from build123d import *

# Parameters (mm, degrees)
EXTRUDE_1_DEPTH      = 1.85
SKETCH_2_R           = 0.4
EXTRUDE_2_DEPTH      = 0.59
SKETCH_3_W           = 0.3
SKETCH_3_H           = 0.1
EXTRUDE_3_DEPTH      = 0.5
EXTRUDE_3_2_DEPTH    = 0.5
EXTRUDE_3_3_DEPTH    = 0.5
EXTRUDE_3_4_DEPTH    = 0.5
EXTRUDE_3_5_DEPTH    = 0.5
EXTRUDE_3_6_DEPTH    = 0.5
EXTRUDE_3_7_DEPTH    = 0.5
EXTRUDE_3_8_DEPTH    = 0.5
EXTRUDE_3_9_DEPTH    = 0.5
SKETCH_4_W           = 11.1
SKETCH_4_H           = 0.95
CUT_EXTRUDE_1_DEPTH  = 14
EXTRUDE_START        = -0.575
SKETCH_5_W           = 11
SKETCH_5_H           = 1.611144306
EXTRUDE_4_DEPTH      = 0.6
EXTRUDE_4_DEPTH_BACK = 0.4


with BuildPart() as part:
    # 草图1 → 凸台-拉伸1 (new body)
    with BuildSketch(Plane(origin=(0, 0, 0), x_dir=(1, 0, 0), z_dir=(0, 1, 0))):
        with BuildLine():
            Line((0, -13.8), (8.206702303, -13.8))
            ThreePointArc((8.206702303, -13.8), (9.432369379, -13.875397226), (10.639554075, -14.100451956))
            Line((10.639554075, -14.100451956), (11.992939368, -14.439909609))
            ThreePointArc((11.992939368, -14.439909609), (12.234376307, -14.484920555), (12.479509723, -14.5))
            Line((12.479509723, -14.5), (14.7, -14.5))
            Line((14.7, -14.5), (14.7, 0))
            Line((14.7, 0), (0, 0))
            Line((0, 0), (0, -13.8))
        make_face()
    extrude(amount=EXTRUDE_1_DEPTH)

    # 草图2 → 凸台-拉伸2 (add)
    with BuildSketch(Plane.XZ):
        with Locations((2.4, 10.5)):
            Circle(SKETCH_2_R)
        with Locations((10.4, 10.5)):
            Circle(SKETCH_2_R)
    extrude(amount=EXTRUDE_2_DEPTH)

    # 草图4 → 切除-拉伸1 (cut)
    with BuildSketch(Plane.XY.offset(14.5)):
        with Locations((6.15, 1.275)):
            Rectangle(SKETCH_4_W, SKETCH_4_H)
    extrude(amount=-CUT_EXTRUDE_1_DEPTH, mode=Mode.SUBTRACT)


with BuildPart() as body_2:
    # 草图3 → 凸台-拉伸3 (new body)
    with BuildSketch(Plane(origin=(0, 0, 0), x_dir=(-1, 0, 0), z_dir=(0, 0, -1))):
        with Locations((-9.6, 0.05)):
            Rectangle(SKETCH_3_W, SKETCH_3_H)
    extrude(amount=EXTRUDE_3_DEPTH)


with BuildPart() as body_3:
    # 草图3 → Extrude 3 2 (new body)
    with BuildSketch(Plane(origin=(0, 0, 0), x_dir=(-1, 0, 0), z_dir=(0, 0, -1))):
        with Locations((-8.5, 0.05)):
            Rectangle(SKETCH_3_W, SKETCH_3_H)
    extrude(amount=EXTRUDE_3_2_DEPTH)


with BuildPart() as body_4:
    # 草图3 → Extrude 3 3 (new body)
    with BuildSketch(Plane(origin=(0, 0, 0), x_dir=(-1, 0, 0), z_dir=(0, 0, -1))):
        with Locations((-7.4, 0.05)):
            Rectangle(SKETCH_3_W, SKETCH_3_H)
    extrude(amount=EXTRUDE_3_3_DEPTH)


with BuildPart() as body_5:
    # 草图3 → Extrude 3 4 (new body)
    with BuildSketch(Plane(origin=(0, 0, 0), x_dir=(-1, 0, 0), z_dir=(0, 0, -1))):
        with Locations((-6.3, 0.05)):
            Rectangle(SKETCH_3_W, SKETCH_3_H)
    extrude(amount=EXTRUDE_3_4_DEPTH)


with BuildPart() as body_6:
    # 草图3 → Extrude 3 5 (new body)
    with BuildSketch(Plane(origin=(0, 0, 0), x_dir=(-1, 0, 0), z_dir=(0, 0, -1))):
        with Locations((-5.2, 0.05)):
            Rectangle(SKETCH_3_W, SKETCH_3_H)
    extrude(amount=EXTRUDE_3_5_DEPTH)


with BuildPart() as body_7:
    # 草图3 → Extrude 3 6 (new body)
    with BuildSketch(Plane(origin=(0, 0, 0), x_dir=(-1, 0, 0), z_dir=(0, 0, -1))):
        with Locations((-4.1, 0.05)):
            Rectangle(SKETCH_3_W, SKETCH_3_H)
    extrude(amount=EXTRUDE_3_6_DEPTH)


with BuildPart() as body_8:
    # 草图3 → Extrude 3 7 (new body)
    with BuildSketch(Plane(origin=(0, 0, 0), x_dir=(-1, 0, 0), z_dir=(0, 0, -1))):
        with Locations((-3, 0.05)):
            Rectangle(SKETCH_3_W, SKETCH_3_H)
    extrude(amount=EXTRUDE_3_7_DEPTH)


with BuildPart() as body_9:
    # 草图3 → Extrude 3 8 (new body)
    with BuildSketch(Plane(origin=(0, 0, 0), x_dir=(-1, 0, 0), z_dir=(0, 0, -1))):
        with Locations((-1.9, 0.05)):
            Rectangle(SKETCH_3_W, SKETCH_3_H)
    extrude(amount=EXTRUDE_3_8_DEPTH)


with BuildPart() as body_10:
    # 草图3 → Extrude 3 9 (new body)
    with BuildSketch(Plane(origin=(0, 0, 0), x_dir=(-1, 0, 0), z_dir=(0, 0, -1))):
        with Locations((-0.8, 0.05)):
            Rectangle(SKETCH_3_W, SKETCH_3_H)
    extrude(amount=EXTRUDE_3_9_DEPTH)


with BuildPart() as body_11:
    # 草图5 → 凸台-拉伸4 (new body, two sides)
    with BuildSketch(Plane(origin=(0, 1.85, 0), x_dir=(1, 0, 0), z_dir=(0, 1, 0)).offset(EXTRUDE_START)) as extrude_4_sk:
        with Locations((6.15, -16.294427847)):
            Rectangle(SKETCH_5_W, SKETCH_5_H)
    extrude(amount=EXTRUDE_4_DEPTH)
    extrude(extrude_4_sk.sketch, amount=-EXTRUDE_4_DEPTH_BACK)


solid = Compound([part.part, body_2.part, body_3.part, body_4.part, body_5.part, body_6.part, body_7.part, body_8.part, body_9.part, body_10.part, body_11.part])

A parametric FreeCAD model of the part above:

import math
import FreeCAD as App
import Part
import Sketcher

V = App.Vector

doc = App.newDocument("Part")
body = doc.addObject("PartDesign::Body", "Body")

# Sketch on XZ plane
sketch1 = body.newObject("Sketcher::SketchObject", "Sketch")
sketch1.AttachmentSupport = (doc.getObject("XZ_Plane"), [""])
sketch1.MapMode = "FlatFace"
sketch1.addGeometry([
    Part.LineSegment(V(0, 13.8, 0), V(8.206702, 13.8, 0)),  # 0
    Part.ArcOfCircle(Part.Circle(V(8.206702, 23.8, 0), V(0, 0, 1), 10), math.radians(-90), math.radians(-75.919484)),  # 1
    Part.LineSegment(V(10.639554, 14.100452, 0), V(11.992939, 14.43991, 0)),  # 2
    Part.ArcOfCircle(Part.Circle(V(12.47951, 12.5, 0), V(0, 0, 1), 2), math.radians(90), math.radians(104.080516)),  # 3
    Part.LineSegment(V(12.47951, 14.5, 0), V(14.7, 14.5, 0)),  # 4
    Part.LineSegment(V(14.7, 14.5, 0), V(14.7, 0, 0)),  # 5
    Part.LineSegment(V(14.7, 0, 0), V(0, 0, 0)),  # 6
    Part.LineSegment(V(0, 0, 0), V(0, 13.8, 0)),  # 7
], False)
sketch1.addConstraint([
    Sketcher.Constraint("Tangent", 0, 2, 1, 1),
    Sketcher.Constraint("Tangent", 1, 2, 2, 1),
    Sketcher.Constraint("Tangent", 2, 2, 3, 2),
    Sketcher.Constraint("Tangent", 3, 1, 4, 1),
    Sketcher.Constraint("Coincident", 4, 2, 5, 1),
    Sketcher.Constraint("Coincident", 5, 2, 6, 1),
    Sketcher.Constraint("Coincident", 6, 2, 7, 1),
    Sketcher.Constraint("Coincident", 7, 2, 0, 1),
    Sketcher.Constraint("Horizontal", 0),
    Sketcher.Constraint("Horizontal", 4),
    Sketcher.Constraint("Vertical", 5),
    Sketcher.Constraint("Horizontal", 6),
    Sketcher.Constraint("Vertical", 7),
    Sketcher.Constraint("Coincident", 6, 2, -1, 1),
    Sketcher.Constraint("Radius", 1, 10.0),
    Sketcher.Constraint("Radius", 3, 2.0),
    Sketcher.Constraint("DistanceX", 6, 2, 6, 1, 14.7),
    Sketcher.Constraint("DistanceY", 5, 2, 5, 1, 14.5),
    Sketcher.Constraint("DistanceY", 7, 1, 7, 2, 13.8),
    Sketcher.Constraint("DistanceX", 4, 1, 4, 2, 2.22049),
    Sketcher.Constraint("DistanceX", 0, 1, 0, 2, 8.206702),
])
pad1 = body.newObject("PartDesign::Pad", "Pad")
pad1.Profile = sketch1
pad1.Length = 1.85
pad1.Reversed = True

# Sketch on XZ plane
sketch2 = body.newObject("Sketcher::SketchObject", "Sketch001")
sketch2.AttachmentSupport = (doc.getObject("XZ_Plane"), [""])
sketch2.MapMode = "FlatFace"
sketch2.addGeometry([
    Part.Circle(V(2.4, 10.5, 0), V(0, 0, 1), 0.4),
    Part.Circle(V(10.4, 10.5, 0), V(0, 0, 1), 0.4),
], False)
sketch2.addConstraint([
    Sketcher.Constraint("Equal", 0, 1),
    Sketcher.Constraint("Horizontal", 0, 3, 1, 3),
    Sketcher.Constraint("Diameter", 0, 0.8),
    Sketcher.Constraint("DistanceX", 0, 3, 1, 3, 8.0),
    Sketcher.Constraint("DistanceX", -1, 1, 0, 3, 2.4),
    Sketcher.Constraint("DistanceY", -1, 1, 0, 3, 10.5),
])
pad2 = body.newObject("PartDesign::Pad", "Pad001")
pad2.Profile = sketch2
pad2.Length = 0.59

# Sketch on XY plane
sketch3 = body.newObject("Sketcher::SketchObject", "Sketch002")
sketch3.AttachmentSupport = (doc.getObject("XY_Plane"), [""])
sketch3.MapMode = "FlatFace"
sketch3.AttachmentOffset = App.Placement(V(0, 0, 14.5), App.Rotation())
sketch3.addGeometry([
    Part.LineSegment(V(0.6, 1.75, 0), V(0.6, 0.8, 0)),
    Part.LineSegment(V(0.6, 0.8, 0), V(11.7, 0.8, 0)),
    Part.LineSegment(V(11.7, 0.8, 0), V(11.7, 1.75, 0)),
    Part.LineSegment(V(11.7, 1.75, 0), V(0.6, 1.75, 0)),
], False)
sketch3.addConstraint([
    Sketcher.Constraint("Coincident", 0, 2, 1, 1),
    Sketcher.Constraint("Coincident", 1, 2, 2, 1),
    Sketcher.Constraint("Coincident", 2, 2, 3, 1),
    Sketcher.Constraint("Coincident", 3, 2, 0, 1),
    Sketcher.Constraint("Vertical", 0),
    Sketcher.Constraint("Horizontal", 1),
    Sketcher.Constraint("Vertical", 2),
    Sketcher.Constraint("Horizontal", 3),
    Sketcher.Constraint("DistanceX", 1, 1, 1, 2, 11.1),
    Sketcher.Constraint("DistanceY", 0, 2, 0, 1, 0.95),
    Sketcher.Constraint("DistanceX", -1, 1, 0, 2, 0.6),
    Sketcher.Constraint("DistanceY", -1, 1, 0, 2, 0.8),
])
pocket1 = body.newObject("PartDesign::Pocket", "Pocket")
pocket1.Profile = sketch3
pocket1.Length = 14
body2 = doc.addObject("PartDesign::Body", "Body001")

# Sketch on XY plane
sketch4 = body2.newObject("Sketcher::SketchObject", "Sketch003")
sketch4.AttachmentSupport = (doc.getObject("XY_Plane001"), [""])
sketch4.MapMode = "FlatFace"
sketch4.addGeometry([
    Part.LineSegment(V(9.75, 0.1, 0), V(9.75, 0, 0)),
    Part.LineSegment(V(9.75, 0, 0), V(9.45, 0, 0)),
    Part.LineSegment(V(9.45, 0, 0), V(9.45, 0.1, 0)),
    Part.LineSegment(V(9.45, 0.1, 0), V(9.75, 0.1, 0)),
], False)
sketch4.addConstraint([
    Sketcher.Constraint("Coincident", 0, 2, 1, 1),
    Sketcher.Constraint("Coincident", 1, 2, 2, 1),
    Sketcher.Constraint("Coincident", 2, 2, 3, 1),
    Sketcher.Constraint("Coincident", 3, 2, 0, 1),
    Sketcher.Constraint("Vertical", 0),
    Sketcher.Constraint("Horizontal", 1),
    Sketcher.Constraint("Vertical", 2),
    Sketcher.Constraint("Horizontal", 3),
    Sketcher.Constraint("PointOnObject", 0, 2, -1),
    Sketcher.Constraint("DistanceX", 1, 2, 1, 1, 0.3),
    Sketcher.Constraint("DistanceY", 0, 2, 0, 1, 0.1),
    Sketcher.Constraint("DistanceX", -1, 1, 0, 2, 9.75),
])
pad3 = body2.newObject("PartDesign::Pad", "Pad002")
pad3.Profile = sketch4
pad3.Length = 0.5
pad3.Reversed = True
body3 = doc.addObject("PartDesign::Body", "Body002")

# Sketch on XY plane
sketch5 = body3.newObject("Sketcher::SketchObject", "Sketch004")
sketch5.AttachmentSupport = (doc.getObject("XY_Plane002"), [""])
sketch5.MapMode = "FlatFace"
sketch5.addGeometry([
    Part.LineSegment(V(8.65, 0.1, 0), V(8.65, 0, 0)),
    Part.LineSegment(V(8.65, 0, 0), V(8.35, 0, 0)),
    Part.LineSegment(V(8.35, 0, 0), V(8.35, 0.1, 0)),
    Part.LineSegment(V(8.35, 0.1, 0), V(8.65, 0.1, 0)),
], False)
sketch5.addConstraint([
    Sketcher.Constraint("Coincident", 0, 2, 1, 1),
    Sketcher.Constraint("Coincident", 1, 2, 2, 1),
    Sketcher.Constraint("Coincident", 2, 2, 3, 1),
    Sketcher.Constraint("Coincident", 3, 2, 0, 1),
    Sketcher.Constraint("Vertical", 0),
    Sketcher.Constraint("Horizontal", 1),
    Sketcher.Constraint("Vertical", 2),
    Sketcher.Constraint("Horizontal", 3),
    Sketcher.Constraint("PointOnObject", 0, 2, -1),
    Sketcher.Constraint("DistanceX", 1, 2, 1, 1, 0.3),
    Sketcher.Constraint("DistanceY", 0, 2, 0, 1, 0.1),
    Sketcher.Constraint("DistanceX", -1, 1, 0, 2, 8.65),
])
pad4 = body3.newObject("PartDesign::Pad", "Pad003")
pad4.Profile = sketch5
pad4.Length = 0.5
pad4.Reversed = True
body4 = doc.addObject("PartDesign::Body", "Body003")

# Sketch on XY plane
sketch6 = body4.newObject("Sketcher::SketchObject", "Sketch005")
sketch6.AttachmentSupport = (doc.getObject("XY_Plane003"), [""])
sketch6.MapMode = "FlatFace"
sketch6.addGeometry([
    Part.LineSegment(V(7.55, 0.1, 0), V(7.55, 0, 0)),
    Part.LineSegment(V(7.55, 0, 0), V(7.25, 0, 0)),
    Part.LineSegment(V(7.25, 0, 0), V(7.25, 0.1, 0)),
    Part.LineSegment(V(7.25, 0.1, 0), V(7.55, 0.1, 0)),
], False)
sketch6.addConstraint([
    Sketcher.Constraint("Coincident", 0, 2, 1, 1),
    Sketcher.Constraint("Coincident", 1, 2, 2, 1),
    Sketcher.Constraint("Coincident", 2, 2, 3, 1),
    Sketcher.Constraint("Coincident", 3, 2, 0, 1),
    Sketcher.Constraint("Vertical", 0),
    Sketcher.Constraint("Horizontal", 1),
    Sketcher.Constraint("Vertical", 2),
    Sketcher.Constraint("Horizontal", 3),
    Sketcher.Constraint("PointOnObject", 0, 2, -1),
    Sketcher.Constraint("DistanceX", 1, 2, 1, 1, 0.3),
    Sketcher.Constraint("DistanceY", 0, 2, 0, 1, 0.1),
    Sketcher.Constraint("DistanceX", -1, 1, 0, 2, 7.55),
])
pad5 = body4.newObject("PartDesign::Pad", "Pad004")
pad5.Profile = sketch6
pad5.Length = 0.5
pad5.Reversed = True
body5 = doc.addObject("PartDesign::Body", "Body004")

# Sketch on XY plane
sketch7 = body5.newObject("Sketcher::SketchObject", "Sketch006")
sketch7.AttachmentSupport = (doc.getObject("XY_Plane004"), [""])
sketch7.MapMode = "FlatFace"
sketch7.addGeometry([
    Part.LineSegment(V(6.45, 0.1, 0), V(6.45, 0, 0)),
    Part.LineSegment(V(6.45, 0, 0), V(6.15, 0, 0)),
    Part.LineSegment(V(6.15, 0, 0), V(6.15, 0.1, 0)),
    Part.LineSegment(V(6.15, 0.1, 0), V(6.45, 0.1, 0)),
], False)
sketch7.addConstraint([
    Sketcher.Constraint("Coincident", 0, 2, 1, 1),
    Sketcher.Constraint("Coincident", 1, 2, 2, 1),
    Sketcher.Constraint("Coincident", 2, 2, 3, 1),
    Sketcher.Constraint("Coincident", 3, 2, 0, 1),
    Sketcher.Constraint("Vertical", 0),
    Sketcher.Constraint("Horizontal", 1),
    Sketcher.Constraint("Vertical", 2),
    Sketcher.Constraint("Horizontal", 3),
    Sketcher.Constraint("PointOnObject", 0, 2, -1),
    Sketcher.Constraint("DistanceX", 1, 2, 1, 1, 0.3),
    Sketcher.Constraint("DistanceY", 0, 2, 0, 1, 0.1),
    Sketcher.Constraint("DistanceX", -1, 1, 0, 2, 6.45),
])
pad6 = body5.newObject("PartDesign::Pad", "Pad005")
pad6.Profile = sketch7
pad6.Length = 0.5
pad6.Reversed = True
body6 = doc.addObject("PartDesign::Body", "Body005")

# Sketch on XY plane
sketch8 = body6.newObject("Sketcher::SketchObject", "Sketch007")
sketch8.AttachmentSupport = (doc.getObject("XY_Plane005"), [""])
sketch8.MapMode = "FlatFace"
sketch8.addGeometry([
    Part.LineSegment(V(5.35, 0.1, 0), V(5.35, 0, 0)),
    Part.LineSegment(V(5.35, 0, 0), V(5.05, 0, 0)),
    Part.LineSegment(V(5.05, 0, 0), V(5.05, 0.1, 0)),
    Part.LineSegment(V(5.05, 0.1, 0), V(5.35, 0.1, 0)),
], False)
sketch8.addConstraint([
    Sketcher.Constraint("Coincident", 0, 2, 1, 1),
    Sketcher.Constraint("Coincident", 1, 2, 2, 1),
    Sketcher.Constraint("Coincident", 2, 2, 3, 1),
    Sketcher.Constraint("Coincident", 3, 2, 0, 1),
    Sketcher.Constraint("Vertical", 0),
    Sketcher.Constraint("Horizontal", 1),
    Sketcher.Constraint("Vertical", 2),
    Sketcher.Constraint("Horizontal", 3),
    Sketcher.Constraint("PointOnObject", 0, 2, -1),
    Sketcher.Constraint("DistanceX", 1, 2, 1, 1, 0.3),
    Sketcher.Constraint("DistanceY", 0, 2, 0, 1, 0.1),
    Sketcher.Constraint("DistanceX", -1, 1, 0, 2, 5.35),
])
pad7 = body6.newObject("PartDesign::Pad", "Pad006")
pad7.Profile = sketch8
pad7.Length = 0.5
pad7.Reversed = True
body7 = doc.addObject("PartDesign::Body", "Body006")

# Sketch on XY plane
sketch9 = body7.newObject("Sketcher::SketchObject", "Sketch008")
sketch9.AttachmentSupport = (doc.getObject("XY_Plane006"), [""])
sketch9.MapMode = "FlatFace"
sketch9.addGeometry([
    Part.LineSegment(V(4.25, 0.1, 0), V(4.25, 0, 0)),
    Part.LineSegment(V(4.25, 0, 0), V(3.95, 0, 0)),
    Part.LineSegment(V(3.95, 0, 0), V(3.95, 0.1, 0)),
    Part.LineSegment(V(3.95, 0.1, 0), V(4.25, 0.1, 0)),
], False)
sketch9.addConstraint([
    Sketcher.Constraint("Coincident", 0, 2, 1, 1),
    Sketcher.Constraint("Coincident", 1, 2, 2, 1),
    Sketcher.Constraint("Coincident", 2, 2, 3, 1),
    Sketcher.Constraint("Coincident", 3, 2, 0, 1),
    Sketcher.Constraint("Vertical", 0),
    Sketcher.Constraint("Horizontal", 1),
    Sketcher.Constraint("Vertical", 2),
    Sketcher.Constraint("Horizontal", 3),
    Sketcher.Constraint("PointOnObject", 0, 2, -1),
    Sketcher.Constraint("DistanceX", 1, 2, 1, 1, 0.3),
    Sketcher.Constraint("DistanceY", 0, 2, 0, 1, 0.1),
    Sketcher.Constraint("DistanceX", -1, 1, 0, 2, 4.25),
])
pad8 = body7.newObject("PartDesign::Pad", "Pad007")
pad8.Profile = sketch9
pad8.Length = 0.5
pad8.Reversed = True
body8 = doc.addObject("PartDesign::Body", "Body007")

# Sketch on XY plane
sketch10 = body8.newObject("Sketcher::SketchObject", "Sketch009")
sketch10.AttachmentSupport = (doc.getObject("XY_Plane007"), [""])
sketch10.MapMode = "FlatFace"
sketch10.addGeometry([
    Part.LineSegment(V(3.15, 0.1, 0), V(3.15, 0, 0)),
    Part.LineSegment(V(3.15, 0, 0), V(2.85, 0, 0)),
    Part.LineSegment(V(2.85, 0, 0), V(2.85, 0.1, 0)),
    Part.LineSegment(V(2.85, 0.1, 0), V(3.15, 0.1, 0)),
], False)
sketch10.addConstraint([
    Sketcher.Constraint("Coincident", 0, 2, 1, 1),
    Sketcher.Constraint("Coincident", 1, 2, 2, 1),
    Sketcher.Constraint("Coincident", 2, 2, 3, 1),
    Sketcher.Constraint("Coincident", 3, 2, 0, 1),
    Sketcher.Constraint("Vertical", 0),
    Sketcher.Constraint("Horizontal", 1),
    Sketcher.Constraint("Vertical", 2),
    Sketcher.Constraint("Horizontal", 3),
    Sketcher.Constraint("PointOnObject", 0, 2, -1),
    Sketcher.Constraint("DistanceX", 1, 2, 1, 1, 0.3),
    Sketcher.Constraint("DistanceY", 0, 2, 0, 1, 0.1),
    Sketcher.Constraint("DistanceX", -1, 1, 0, 2, 3.15),
])
pad9 = body8.newObject("PartDesign::Pad", "Pad008")
pad9.Profile = sketch10
pad9.Length = 0.5
pad9.Reversed = True
body9 = doc.addObject("PartDesign::Body", "Body008")

# Sketch on XY plane
sketch11 = body9.newObject("Sketcher::SketchObject", "Sketch010")
sketch11.AttachmentSupport = (doc.getObject("XY_Plane008"), [""])
sketch11.MapMode = "FlatFace"
sketch11.addGeometry([
    Part.LineSegment(V(2.05, 0.1, 0), V(2.05, 0, 0)),
    Part.LineSegment(V(2.05, 0, 0), V(1.75, 0, 0)),
    Part.LineSegment(V(1.75, 0, 0), V(1.75, 0.1, 0)),
    Part.LineSegment(V(1.75, 0.1, 0), V(2.05, 0.1, 0)),
], False)
sketch11.addConstraint([
    Sketcher.Constraint("Coincident", 0, 2, 1, 1),
    Sketcher.Constraint("Coincident", 1, 2, 2, 1),
    Sketcher.Constraint("Coincident", 2, 2, 3, 1),
    Sketcher.Constraint("Coincident", 3, 2, 0, 1),
    Sketcher.Constraint("Vertical", 0),
    Sketcher.Constraint("Horizontal", 1),
    Sketcher.Constraint("Vertical", 2),
    Sketcher.Constraint("Horizontal", 3),
    Sketcher.Constraint("PointOnObject", 0, 2, -1),
    Sketcher.Constraint("DistanceX", 1, 2, 1, 1, 0.3),
    Sketcher.Constraint("DistanceY", 0, 2, 0, 1, 0.1),
    Sketcher.Constraint("DistanceX", -1, 1, 0, 2, 2.05),
])
pad10 = body9.newObject("PartDesign::Pad", "Pad009")
pad10.Profile = sketch11
pad10.Length = 0.5
pad10.Reversed = True
body10 = doc.addObject("PartDesign::Body", "Body009")

# Sketch on XY plane
sketch12 = body10.newObject("Sketcher::SketchObject", "Sketch011")
sketch12.AttachmentSupport = (doc.getObject("XY_Plane009"), [""])
sketch12.MapMode = "FlatFace"
sketch12.addGeometry([
    Part.LineSegment(V(0.95, 0.1, 0), V(0.95, 0, 0)),
    Part.LineSegment(V(0.95, 0, 0), V(0.65, 0, 0)),
    Part.LineSegment(V(0.65, 0, 0), V(0.65, 0.1, 0)),
    Part.LineSegment(V(0.65, 0.1, 0), V(0.95, 0.1, 0)),
], False)
sketch12.addConstraint([
    Sketcher.Constraint("Coincident", 0, 2, 1, 1),
    Sketcher.Constraint("Coincident", 1, 2, 2, 1),
    Sketcher.Constraint("Coincident", 2, 2, 3, 1),
    Sketcher.Constraint("Coincident", 3, 2, 0, 1),
    Sketcher.Constraint("Vertical", 0),
    Sketcher.Constraint("Horizontal", 1),
    Sketcher.Constraint("Vertical", 2),
    Sketcher.Constraint("Horizontal", 3),
    Sketcher.Constraint("PointOnObject", 0, 2, -1),
    Sketcher.Constraint("DistanceX", 1, 2, 1, 1, 0.3),
    Sketcher.Constraint("DistanceY", 0, 2, 0, 1, 0.1),
    Sketcher.Constraint("DistanceX", -1, 1, 0, 2, 0.95),
])
pad11 = body10.newObject("PartDesign::Pad", "Pad010")
pad11.Profile = sketch12
pad11.Length = 0.5
pad11.Reversed = True
body11 = doc.addObject("PartDesign::Body", "Body010")

# Sketch on XZ plane
sketch13 = body11.newObject("Sketcher::SketchObject", "Sketch012")
sketch13.AttachmentSupport = (doc.getObject("XZ_Plane010"), [""])
sketch13.MapMode = "FlatFace"
sketch13.AttachmentOffset = App.Placement(V(0, 0, -1.275), App.Rotation())
sketch13.addGeometry([
    Part.LineSegment(V(0.65, 15.488856, 0), V(0.65, 17.1, 0)),
    Part.LineSegment(V(0.65, 17.1, 0), V(11.65, 17.1, 0)),
    Part.LineSegment(V(11.65, 17.1, 0), V(11.65, 15.488856, 0)),
    Part.LineSegment(V(11.65, 15.488856, 0), V(0.65, 15.488856, 0)),
], False)
sketch13.addConstraint([
    Sketcher.Constraint("Coincident", 0, 2, 1, 1),
    Sketcher.Constraint("Coincident", 1, 2, 2, 1),
    Sketcher.Constraint("Coincident", 2, 2, 3, 1),
    Sketcher.Constraint("Coincident", 3, 2, 0, 1),
    Sketcher.Constraint("Vertical", 0),
    Sketcher.Constraint("Horizontal", 1),
    Sketcher.Constraint("Vertical", 2),
    Sketcher.Constraint("Horizontal", 3),
    Sketcher.Constraint("DistanceX", 1, 1, 1, 2, 11.0),
    Sketcher.Constraint("DistanceY", -1, 1, 0, 2, 17.1),
    Sketcher.Constraint("DistanceX", -1, 1, 0, 2, 0.65),
    Sketcher.Constraint("DistanceY", 0, 1, 0, 2, 1.611144),
])
pad12 = body11.newObject("PartDesign::Pad", "Pad011")
pad12.Profile = sketch13
pad12.Type = "TwoLengths"
pad12.Length = 0.6
pad12.Length2 = 0.4
pad12.Reversed = True

doc.recompute()
